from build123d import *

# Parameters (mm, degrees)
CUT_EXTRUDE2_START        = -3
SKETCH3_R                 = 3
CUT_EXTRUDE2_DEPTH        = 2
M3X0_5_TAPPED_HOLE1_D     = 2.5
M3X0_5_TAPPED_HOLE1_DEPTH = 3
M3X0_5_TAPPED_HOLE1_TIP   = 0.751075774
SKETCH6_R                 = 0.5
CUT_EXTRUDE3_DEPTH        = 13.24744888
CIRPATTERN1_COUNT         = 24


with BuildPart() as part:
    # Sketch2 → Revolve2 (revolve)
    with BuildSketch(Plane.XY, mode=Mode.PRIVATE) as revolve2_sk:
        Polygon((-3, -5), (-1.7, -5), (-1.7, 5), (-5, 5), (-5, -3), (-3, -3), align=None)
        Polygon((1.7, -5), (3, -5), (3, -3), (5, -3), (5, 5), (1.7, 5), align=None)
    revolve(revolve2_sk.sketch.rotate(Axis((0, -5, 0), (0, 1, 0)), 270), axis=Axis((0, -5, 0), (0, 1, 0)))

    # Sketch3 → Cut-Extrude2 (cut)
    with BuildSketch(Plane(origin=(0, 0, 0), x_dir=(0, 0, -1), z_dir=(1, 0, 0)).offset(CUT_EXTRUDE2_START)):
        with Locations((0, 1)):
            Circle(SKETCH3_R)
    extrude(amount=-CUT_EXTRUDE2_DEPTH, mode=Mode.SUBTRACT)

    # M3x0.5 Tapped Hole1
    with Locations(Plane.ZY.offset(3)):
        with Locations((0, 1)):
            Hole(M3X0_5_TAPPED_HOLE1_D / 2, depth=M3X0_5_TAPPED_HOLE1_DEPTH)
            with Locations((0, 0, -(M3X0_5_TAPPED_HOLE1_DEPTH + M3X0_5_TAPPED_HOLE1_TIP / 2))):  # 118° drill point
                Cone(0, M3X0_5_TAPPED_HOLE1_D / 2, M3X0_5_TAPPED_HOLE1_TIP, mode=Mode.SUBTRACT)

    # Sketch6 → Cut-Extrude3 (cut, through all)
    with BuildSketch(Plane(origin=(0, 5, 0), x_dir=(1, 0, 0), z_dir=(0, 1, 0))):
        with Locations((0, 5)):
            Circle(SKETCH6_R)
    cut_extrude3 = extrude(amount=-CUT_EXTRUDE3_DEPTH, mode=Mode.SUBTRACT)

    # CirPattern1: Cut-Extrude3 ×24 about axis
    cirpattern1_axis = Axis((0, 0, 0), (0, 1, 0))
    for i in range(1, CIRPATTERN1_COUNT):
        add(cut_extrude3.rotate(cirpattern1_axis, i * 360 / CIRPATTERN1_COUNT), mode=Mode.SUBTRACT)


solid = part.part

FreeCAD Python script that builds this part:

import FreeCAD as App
import Part
import Sketcher
from FreeCAD import Vector
Q = App.Units.Quantity


def add_polygon(sketch, points):
    """Adds a closed chain of lines whose ends are joined by coincident constraints."""
    first, n = sketch.GeometryCount, len(points)
    for a, b in zip(points, points[1:] + points[:1]):
        sketch.addGeometry(Part.LineSegment(App.Vector(*a, 0), App.Vector(*b, 0)), False)
    for i in range(n):
        sketch.addConstraint(Sketcher.Constraint("Coincident", first + i, 2, first + (i + 1) % n, 1))

doc = App.newDocument("Part")
body = doc.addObject("PartDesign::Body", "Body")

sketch1 = body.newObject("Sketcher::SketchObject", "Sketch")
sketch1.AttachmentSupport = (doc.getObject("XY_Plane"), [""])
sketch1.MapMode = "FlatFace"
add_polygon(sketch1, [(-3, -5), (-1.7, -5), (-1.7, 5), (-5, 5), (-5, -3), (-3, -3)])
add_polygon(sketch1, [(1.7, -5), (3, -5), (3, -3), (5, -3), (5, 5), (1.7, 5)])
sketch1.addConstraint(Sketcher.Constraint("Horizontal", 0))
sketch1.addConstraint(Sketcher.Constraint("Vertical", 1))
sketch1.addConstraint(Sketcher.Constraint("Horizontal", 2))
sketch1.addConstraint(Sketcher.Constraint("Vertical", 3))
sketch1.addConstraint(Sketcher.Constraint("Horizontal", 4))
sketch1.addConstraint(Sketcher.Constraint("Vertical", 5))
sketch1.addConstraint(Sketcher.Constraint("Horizontal", 6))
sketch1.addConstraint(Sketcher.Constraint("Vertical", 7))
sketch1.addConstraint(Sketcher.Constraint("Horizontal", 8))
sketch1.addConstraint(Sketcher.Constraint("Vertical", 9))
sketch1.addConstraint(Sketcher.Constraint("Horizontal", 10))
sketch1.addConstraint(Sketcher.Constraint("Vertical", 11))
sketch1.addConstraint(Sketcher.Constraint("Symmetric", 0, 2, 10, 2, -1, 1))
sketch1.addConstraint(Sketcher.Constraint("Symmetric", 5, 2, 6, 2, -2))
sketch1.addConstraint(Sketcher.Constraint("Symmetric", 3, 2, 8, 2, -2))
sketch1.addConstraint(Sketcher.Constraint("Horizontal", 2, 2, 9, 2))
sketch1.addConstraint(Sketcher.Constraint("Equal", 8, 5))
sketch1.addConstraint(Sketcher.Constraint("DistanceX", 4, 1, 4, 2, Q("2 mm")))
sketch1.addConstraint(Sketcher.Constraint("DistanceY", 1, 1, 1, 2, Q("10 mm")))
sketch1.addConstraint(Sketcher.Constraint("DistanceX", 0, 1, 0, 2, Q("1.3 mm")))
sketch1.addConstraint(Sketcher.Constraint("DistanceX", 2, 2, -1, 1, Q("5 mm")))
revolution = body.newObject("PartDesign::Revolution", "Revolution")
revolution.Profile = sketch1
revolution.ReferenceAxis = (sketch1, ["V_Axis"])
revolution.Angle = 360

sketch2 = body.newObject("Sketcher::SketchObject", "Sketch001")
sketch2.AttachmentSupport = (doc.getObject("YZ_Plane"), [""])
sketch2.MapMode = "FlatFace"
sketch2.AttachmentOffset = App.Placement(Vector(0, 0, -3), App.Rotation())
sketch2.addGeometry(Part.Circle(Vector(1, 0, 0), Vector(0, 0, 1), 3), False)
sketch2.addConstraint(Sketcher.Constraint("PointOnObject", 0, 3, -1))
sketch2.addConstraint(Sketcher.Constraint("Diameter", 0, Q("6 mm")))
sketch2.addConstraint(Sketcher.Constraint("DistanceX", -1, 1, 0, 3, Q("1 mm")))
pocket1 = body.newObject("PartDesign::Pocket", "Pocket")
pocket1.Profile = sketch2
pocket1.Length = 2

sketch3 = body.newObject("Sketcher::SketchObject", "Sketch002")
sketch3.AttachmentSupport = (doc.getObject("YZ_Plane"), [""])
sketch3.MapMode = "FlatFace"
sketch3.AttachmentOffset = App.Placement(Vector(0, 0, -3), App.Rotation())
sketch3.addGeometry(Part.Circle(Vector(1, 0, 0), Vector(0, 0, 1), 1.2), False)
sketch3.addConstraint(Sketcher.Constraint("PointOnObject", 0, 3, -1))
sketch3.addConstraint(Sketcher.Constraint("Diameter", 0, Q("2.5 mm")))
sketch3.addConstraint(Sketcher.Constraint("DistanceX", -1, 1, 0, 3, Q("1 mm")))
doc.recompute()
hole = body.newObject("PartDesign::Hole", "Hole")
hole.Profile = sketch3
hole.ThreadType = "None"
hole.Diameter = 2.5
hole.DepthType = "Dimension"
hole.Depth = 3
hole.DrillPoint = "Angled"
hole.DrillPointAngle = 118
hole.Reversed = True

sketch4 = body.newObject("Sketcher::SketchObject", "Sketch003")
sketch4.AttachmentSupport = (doc.getObject("XZ_Plane"), [""])
sketch4.MapMode = "FlatFace"
sketch4.AttachmentOffset = App.Placement(Vector(0, 0, -5), App.Rotation())
sketch4.addGeometry(Part.Circle(Vector(0, -5, 0), Vector(0, 0, 1), 0.5), False)
sketch4.addConstraint(Sketcher.Constraint("PointOnObject", 0, 3, -2))
sketch4.addConstraint(Sketcher.Constraint("Diameter", 0, Q("1 mm")))
sketch4.addConstraint(Sketcher.Constraint("DistanceY", 0, 3, -1, 1, Q("5 mm")))
pocket2 = body.newObject("PartDesign::Pocket", "Pocket001")
pocket2.Profile = sketch4
pocket2.Type = "ThroughAll"
pocket2.Reversed = True
doc.recompute()

polarpattern = body.newObject("PartDesign::PolarPattern", "PolarPattern")
polarpattern.Originals = [pocket2]
polarpattern.Axis = (doc.getObject("Y_Axis"), [""])
polarpattern.Angle = 360
polarpattern.Occurrences = 24
body.Tip = polarpattern

doc.recompute()
